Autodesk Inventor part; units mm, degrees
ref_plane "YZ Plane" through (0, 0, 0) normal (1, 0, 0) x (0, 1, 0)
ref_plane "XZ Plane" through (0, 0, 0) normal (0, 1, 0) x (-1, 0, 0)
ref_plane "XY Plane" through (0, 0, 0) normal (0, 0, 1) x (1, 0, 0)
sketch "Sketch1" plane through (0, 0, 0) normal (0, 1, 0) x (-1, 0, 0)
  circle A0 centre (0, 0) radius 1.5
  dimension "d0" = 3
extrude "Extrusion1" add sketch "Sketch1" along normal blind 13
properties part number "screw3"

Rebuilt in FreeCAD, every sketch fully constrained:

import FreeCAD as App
import Part
import Sketcher
Q = App.Units.Quantity

doc = App.newDocument("Part")
params = doc.addObject("Spreadsheet::Sheet", "Params")
for row, (alias, value) in enumerate([
    ("sketch1_diameter", "3 mm"),
    ("pad1_length", "13 mm"),
], start=1):
    params.set(f"A{row}", alias)
    params.set(f"B{row}", "=" + value)
    params.setAlias(f"B{row}", alias)

body = doc.addObject("PartDesign::Body", "Body")

sketch1 = body.newObject("Sketcher::SketchObject", "Sketch")
sketch1.AttachmentSupport = (doc.getObject("XZ_Plane"), [""])
sketch1.MapMode = "FlatFace"
sketch1.addGeometry(Part.Circle(App.Vector(0, 0, 0), App.Vector(0, 0, 1), 1.5), False)
sketch1.addConstraint(Sketcher.Constraint("Coincident", 0, 3, -1, 1))
sketch1.addConstraint(Sketcher.Constraint("Diameter", 0, Q("3 mm")))
sketch1.setExpression("Constraints[1]", "Params.sketch1_diameter")
pad1 = body.newObject("PartDesign::Pad", "Pad")
pad1.Profile = sketch1
pad1.setExpression("Length", "Params.pad1_length")
pad1.Reversed = True

doc.recompute()
